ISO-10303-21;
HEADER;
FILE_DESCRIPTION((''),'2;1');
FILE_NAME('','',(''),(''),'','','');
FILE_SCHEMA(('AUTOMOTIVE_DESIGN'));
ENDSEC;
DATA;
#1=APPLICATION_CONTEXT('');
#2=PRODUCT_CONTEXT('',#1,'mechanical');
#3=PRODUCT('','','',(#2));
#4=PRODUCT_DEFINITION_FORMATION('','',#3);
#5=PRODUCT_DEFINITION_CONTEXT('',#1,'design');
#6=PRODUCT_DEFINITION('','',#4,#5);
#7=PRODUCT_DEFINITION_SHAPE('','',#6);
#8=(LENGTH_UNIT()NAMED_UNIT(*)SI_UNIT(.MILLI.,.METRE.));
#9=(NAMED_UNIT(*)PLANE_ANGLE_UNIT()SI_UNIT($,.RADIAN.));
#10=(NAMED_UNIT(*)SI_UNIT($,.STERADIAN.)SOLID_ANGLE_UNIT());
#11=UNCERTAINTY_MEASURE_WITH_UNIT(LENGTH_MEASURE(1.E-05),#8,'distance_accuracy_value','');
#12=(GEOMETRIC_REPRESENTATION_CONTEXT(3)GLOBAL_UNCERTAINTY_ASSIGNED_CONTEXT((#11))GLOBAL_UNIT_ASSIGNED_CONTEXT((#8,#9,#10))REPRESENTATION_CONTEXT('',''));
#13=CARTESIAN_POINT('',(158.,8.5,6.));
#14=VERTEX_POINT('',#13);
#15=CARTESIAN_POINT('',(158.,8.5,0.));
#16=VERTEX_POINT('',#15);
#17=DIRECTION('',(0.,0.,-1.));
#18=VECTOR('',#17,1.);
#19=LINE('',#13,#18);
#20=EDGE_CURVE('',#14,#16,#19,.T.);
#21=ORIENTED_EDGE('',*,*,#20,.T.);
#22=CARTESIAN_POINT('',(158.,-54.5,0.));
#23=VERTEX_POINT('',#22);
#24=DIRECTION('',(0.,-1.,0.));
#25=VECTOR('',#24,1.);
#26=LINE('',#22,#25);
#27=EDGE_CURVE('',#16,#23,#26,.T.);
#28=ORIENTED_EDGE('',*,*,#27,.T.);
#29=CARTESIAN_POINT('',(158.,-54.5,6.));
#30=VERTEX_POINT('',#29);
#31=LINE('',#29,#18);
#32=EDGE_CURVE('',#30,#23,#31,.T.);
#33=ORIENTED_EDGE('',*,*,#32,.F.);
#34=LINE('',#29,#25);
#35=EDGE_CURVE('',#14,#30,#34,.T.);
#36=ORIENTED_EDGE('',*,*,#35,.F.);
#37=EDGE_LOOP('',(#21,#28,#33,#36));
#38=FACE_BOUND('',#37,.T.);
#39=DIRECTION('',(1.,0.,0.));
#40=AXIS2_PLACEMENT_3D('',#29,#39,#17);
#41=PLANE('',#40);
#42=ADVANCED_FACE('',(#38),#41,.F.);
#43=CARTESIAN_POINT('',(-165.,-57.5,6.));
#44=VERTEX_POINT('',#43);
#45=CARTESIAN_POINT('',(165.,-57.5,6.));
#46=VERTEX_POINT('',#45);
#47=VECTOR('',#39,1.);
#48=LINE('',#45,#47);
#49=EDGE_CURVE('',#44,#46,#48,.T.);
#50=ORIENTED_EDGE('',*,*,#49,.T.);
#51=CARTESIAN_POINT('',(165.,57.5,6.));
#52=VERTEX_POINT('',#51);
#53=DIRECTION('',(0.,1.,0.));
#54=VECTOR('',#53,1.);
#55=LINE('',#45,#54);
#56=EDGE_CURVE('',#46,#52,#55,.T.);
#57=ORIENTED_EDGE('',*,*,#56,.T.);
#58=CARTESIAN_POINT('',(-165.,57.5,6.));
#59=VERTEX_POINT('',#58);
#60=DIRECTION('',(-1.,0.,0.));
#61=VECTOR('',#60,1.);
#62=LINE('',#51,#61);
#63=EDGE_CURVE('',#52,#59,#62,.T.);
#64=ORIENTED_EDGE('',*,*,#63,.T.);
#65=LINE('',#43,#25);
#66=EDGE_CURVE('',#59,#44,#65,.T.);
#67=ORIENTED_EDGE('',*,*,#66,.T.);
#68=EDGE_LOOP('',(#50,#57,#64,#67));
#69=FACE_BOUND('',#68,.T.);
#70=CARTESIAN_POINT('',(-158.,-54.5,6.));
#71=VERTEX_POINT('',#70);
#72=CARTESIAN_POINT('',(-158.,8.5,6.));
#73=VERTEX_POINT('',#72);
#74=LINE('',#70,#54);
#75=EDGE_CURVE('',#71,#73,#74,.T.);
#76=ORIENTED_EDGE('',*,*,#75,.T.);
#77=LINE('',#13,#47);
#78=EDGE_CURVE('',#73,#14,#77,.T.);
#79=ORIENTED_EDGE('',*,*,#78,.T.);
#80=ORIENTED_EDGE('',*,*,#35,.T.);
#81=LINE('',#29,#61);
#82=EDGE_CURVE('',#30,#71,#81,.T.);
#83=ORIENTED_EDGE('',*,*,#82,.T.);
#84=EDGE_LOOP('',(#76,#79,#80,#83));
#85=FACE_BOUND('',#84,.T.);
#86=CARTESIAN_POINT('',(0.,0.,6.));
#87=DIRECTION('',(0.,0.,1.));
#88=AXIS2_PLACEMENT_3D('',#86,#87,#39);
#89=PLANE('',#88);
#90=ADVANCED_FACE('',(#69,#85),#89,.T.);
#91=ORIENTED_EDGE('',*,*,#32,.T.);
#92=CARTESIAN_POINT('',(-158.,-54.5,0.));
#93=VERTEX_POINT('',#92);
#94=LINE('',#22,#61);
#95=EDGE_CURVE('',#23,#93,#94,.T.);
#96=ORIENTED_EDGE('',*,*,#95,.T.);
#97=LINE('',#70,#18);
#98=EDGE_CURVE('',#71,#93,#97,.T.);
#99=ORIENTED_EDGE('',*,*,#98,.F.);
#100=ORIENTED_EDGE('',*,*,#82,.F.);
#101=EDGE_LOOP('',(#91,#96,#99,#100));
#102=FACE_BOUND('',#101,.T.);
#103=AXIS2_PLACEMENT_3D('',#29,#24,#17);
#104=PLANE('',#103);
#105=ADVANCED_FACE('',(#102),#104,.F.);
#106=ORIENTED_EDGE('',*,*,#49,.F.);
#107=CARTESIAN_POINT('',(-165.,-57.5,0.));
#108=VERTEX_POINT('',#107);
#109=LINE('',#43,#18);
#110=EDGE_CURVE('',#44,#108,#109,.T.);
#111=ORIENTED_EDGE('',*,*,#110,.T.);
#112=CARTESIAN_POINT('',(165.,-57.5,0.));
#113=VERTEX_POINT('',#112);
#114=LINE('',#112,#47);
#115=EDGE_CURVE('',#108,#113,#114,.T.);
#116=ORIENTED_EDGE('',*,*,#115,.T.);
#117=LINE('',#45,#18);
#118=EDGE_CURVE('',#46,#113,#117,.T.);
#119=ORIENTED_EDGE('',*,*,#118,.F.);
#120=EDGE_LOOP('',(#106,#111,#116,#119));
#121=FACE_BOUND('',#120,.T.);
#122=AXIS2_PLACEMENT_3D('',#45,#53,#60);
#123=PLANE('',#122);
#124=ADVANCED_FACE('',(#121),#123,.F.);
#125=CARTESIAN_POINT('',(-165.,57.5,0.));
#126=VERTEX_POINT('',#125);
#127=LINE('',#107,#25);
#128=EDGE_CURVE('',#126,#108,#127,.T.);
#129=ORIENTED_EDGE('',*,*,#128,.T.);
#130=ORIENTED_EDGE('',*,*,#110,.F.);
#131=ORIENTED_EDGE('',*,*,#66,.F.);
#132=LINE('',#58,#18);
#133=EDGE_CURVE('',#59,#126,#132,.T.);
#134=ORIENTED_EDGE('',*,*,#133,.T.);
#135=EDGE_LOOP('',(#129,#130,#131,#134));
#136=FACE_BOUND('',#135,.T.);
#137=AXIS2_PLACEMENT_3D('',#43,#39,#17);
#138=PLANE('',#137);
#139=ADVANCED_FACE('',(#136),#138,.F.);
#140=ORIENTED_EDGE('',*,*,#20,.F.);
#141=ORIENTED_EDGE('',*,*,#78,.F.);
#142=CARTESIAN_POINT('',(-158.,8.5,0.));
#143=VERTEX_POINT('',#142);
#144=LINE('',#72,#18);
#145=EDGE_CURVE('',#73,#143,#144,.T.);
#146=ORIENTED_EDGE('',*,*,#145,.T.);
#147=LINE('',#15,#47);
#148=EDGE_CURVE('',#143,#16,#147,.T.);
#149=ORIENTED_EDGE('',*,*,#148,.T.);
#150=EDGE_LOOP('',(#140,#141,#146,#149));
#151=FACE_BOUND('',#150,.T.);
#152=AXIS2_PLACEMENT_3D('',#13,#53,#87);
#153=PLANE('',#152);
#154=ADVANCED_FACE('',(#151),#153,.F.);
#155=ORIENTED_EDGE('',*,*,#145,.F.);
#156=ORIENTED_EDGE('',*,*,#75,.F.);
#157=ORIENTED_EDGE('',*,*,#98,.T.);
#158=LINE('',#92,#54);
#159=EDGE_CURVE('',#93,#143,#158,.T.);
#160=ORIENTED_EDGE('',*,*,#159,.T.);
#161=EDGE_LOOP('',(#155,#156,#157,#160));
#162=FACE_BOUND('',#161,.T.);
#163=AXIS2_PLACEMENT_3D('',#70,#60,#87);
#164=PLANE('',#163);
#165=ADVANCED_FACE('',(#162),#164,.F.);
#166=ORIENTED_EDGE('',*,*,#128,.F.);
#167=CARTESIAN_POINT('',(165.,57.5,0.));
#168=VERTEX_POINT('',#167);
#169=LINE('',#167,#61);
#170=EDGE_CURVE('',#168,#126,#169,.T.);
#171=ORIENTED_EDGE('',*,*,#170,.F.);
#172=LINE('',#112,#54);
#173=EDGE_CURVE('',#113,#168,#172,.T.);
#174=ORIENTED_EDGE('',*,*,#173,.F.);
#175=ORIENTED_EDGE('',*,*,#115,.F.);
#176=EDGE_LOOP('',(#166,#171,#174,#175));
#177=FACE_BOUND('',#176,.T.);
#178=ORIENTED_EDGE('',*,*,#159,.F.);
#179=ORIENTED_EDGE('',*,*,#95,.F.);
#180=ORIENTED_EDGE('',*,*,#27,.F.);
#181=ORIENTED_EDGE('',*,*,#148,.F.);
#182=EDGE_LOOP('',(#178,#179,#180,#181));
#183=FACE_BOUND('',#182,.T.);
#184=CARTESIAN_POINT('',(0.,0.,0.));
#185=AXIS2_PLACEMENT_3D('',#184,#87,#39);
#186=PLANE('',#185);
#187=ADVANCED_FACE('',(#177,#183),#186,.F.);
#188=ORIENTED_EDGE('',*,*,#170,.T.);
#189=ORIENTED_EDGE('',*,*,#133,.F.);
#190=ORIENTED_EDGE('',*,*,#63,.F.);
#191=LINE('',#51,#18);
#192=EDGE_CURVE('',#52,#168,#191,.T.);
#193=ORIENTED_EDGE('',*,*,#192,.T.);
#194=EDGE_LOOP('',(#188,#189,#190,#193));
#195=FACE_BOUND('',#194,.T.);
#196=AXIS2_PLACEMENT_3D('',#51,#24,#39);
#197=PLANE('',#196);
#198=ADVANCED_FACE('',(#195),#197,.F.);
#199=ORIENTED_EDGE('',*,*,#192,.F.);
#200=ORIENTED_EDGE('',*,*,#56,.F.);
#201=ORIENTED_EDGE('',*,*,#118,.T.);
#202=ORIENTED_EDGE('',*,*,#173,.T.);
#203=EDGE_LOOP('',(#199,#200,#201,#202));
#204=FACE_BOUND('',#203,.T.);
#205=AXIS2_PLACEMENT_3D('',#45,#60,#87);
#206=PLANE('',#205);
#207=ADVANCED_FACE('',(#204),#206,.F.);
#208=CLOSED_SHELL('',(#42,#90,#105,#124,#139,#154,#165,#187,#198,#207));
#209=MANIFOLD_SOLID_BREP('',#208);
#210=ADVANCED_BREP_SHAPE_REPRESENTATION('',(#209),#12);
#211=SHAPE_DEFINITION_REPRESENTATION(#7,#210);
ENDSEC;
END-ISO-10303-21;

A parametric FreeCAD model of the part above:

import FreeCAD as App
import Part
import Sketcher
from FreeCAD import Vector


def add_polygon(sketch, points):
    """Adds a closed chain of lines whose ends are joined by coincident constraints."""
    first, n = sketch.GeometryCount, len(points)
    for a, b in zip(points, points[1:] + points[:1]):
        sketch.addGeometry(Part.LineSegment(App.Vector(*a, 0), App.Vector(*b, 0)), False)
    for i in range(n):
        sketch.addConstraint(Sketcher.Constraint("Coincident", first + i, 2, first + (i + 1) % n, 1))

doc = App.newDocument("Part")
body = doc.addObject("PartDesign::Body", "Body")

# Sketch on XY plane
sketch1 = body.newObject("Sketcher::SketchObject", "Sketch")
sketch1.AttachmentSupport = (doc.getObject("XY_Plane"), [""])
sketch1.MapMode = "FlatFace"
add_polygon(sketch1, [(-165, 58), (-165, -58), (165, -58), (165, 58)])  # lines 0-3
sketch1.addConstraint([
    Sketcher.Constraint("Vertical", 0),
    Sketcher.Constraint("Horizontal", 1),
    Sketcher.Constraint("Vertical", 2),
    Sketcher.Constraint("Horizontal", 3),
    Sketcher.Constraint("Symmetric", 0, 2, 2, 2, -1, 1),
    Sketcher.Constraint("DistanceX", 1, 1, 1, 2, 330.0),
    Sketcher.Constraint("DistanceY", 0, 2, 0, 1, 115.0),
])
pad1 = body.newObject("PartDesign::Pad", "Pad")
pad1.Profile = sketch1
pad1.Length = 6

# Sketch on XY plane
sketch2 = body.newObject("Sketcher::SketchObject", "Sketch001")
sketch2.AttachmentSupport = (doc.getObject("XY_Plane"), [""])
sketch2.MapMode = "FlatFace"
add_polygon(sketch2, [(158, 8), (158, -54), (-158, -54), (-158, 8)])  # lines 0-3
sketch2.addConstraint([
    Sketcher.Constraint("Vertical", 0),
    Sketcher.Constraint("Horizontal", 1),
    Sketcher.Constraint("Vertical", 2),
    Sketcher.Constraint("Horizontal", 3),
    Sketcher.Constraint("DistanceX", 1, 2, 1, 1, 316.0),
    Sketcher.Constraint("DistanceY", 0, 2, 0, 1, 63.0),
    Sketcher.Constraint("DistanceX", -1, 1, 0, 2, 158.0),
    Sketcher.Constraint("DistanceY", 0, 2, -1, 1, 54.5),
])
pocket1 = body.newObject("PartDesign::Pocket", "Pocket")
pocket1.Profile = sketch2
pocket1.Type = "ThroughAll"
pocket1.Reversed = True

doc.recompute()
